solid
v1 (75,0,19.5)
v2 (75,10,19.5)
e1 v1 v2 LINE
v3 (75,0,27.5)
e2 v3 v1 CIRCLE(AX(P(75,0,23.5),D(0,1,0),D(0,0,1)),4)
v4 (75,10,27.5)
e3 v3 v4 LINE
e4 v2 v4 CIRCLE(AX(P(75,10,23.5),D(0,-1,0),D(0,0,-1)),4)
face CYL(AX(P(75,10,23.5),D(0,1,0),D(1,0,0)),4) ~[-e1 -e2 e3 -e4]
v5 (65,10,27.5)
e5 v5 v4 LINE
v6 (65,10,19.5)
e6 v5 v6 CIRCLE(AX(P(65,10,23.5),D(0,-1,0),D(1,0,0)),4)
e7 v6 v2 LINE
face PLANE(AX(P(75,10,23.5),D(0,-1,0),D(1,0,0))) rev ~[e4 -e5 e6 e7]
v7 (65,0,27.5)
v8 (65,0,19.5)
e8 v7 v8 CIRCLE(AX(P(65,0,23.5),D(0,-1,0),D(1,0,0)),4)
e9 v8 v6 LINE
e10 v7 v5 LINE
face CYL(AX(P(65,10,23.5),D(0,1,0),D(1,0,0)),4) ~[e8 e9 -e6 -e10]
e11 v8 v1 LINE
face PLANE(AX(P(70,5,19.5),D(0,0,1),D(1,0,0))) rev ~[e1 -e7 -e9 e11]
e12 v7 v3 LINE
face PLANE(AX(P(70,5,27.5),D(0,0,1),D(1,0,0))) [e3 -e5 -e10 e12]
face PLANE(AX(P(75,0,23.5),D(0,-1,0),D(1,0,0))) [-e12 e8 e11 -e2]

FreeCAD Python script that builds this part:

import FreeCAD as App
import Part
import Sketcher
Q = App.Units.Quantity

doc = App.newDocument("Part")
body = doc.addObject("PartDesign::Body", "Body")

# Sketch on XZ plane
sketch1 = body.newObject("Sketcher::SketchObject", "Sketch")
sketch1.AttachmentSupport = (doc.getObject("XZ_Plane"), [""])
sketch1.MapMode = "FlatFace"
sketch1.AttachmentOffset = App.Placement(App.Vector(0, 0, -10), App.Rotation())
sketch1.addGeometry(Part.Circle(App.Vector(65, 23.5, 0), App.Vector(0, 0, 1), 4), False)
sketch1.addConstraint([
    Sketcher.Constraint("Diameter", 0, Q("8 mm")),
    Sketcher.Constraint("DistanceX", -1, 1, 0, 3, Q("65 mm")),
    Sketcher.Constraint("DistanceY", -1, 1, 0, 3, Q("23.5 mm")),
])
pad1 = body.newObject("PartDesign::Pad", "Pad")
pad1.Profile = sketch1
pad1.Length = 10
body2 = doc.addObject("PartDesign::Body", "Body001")

# Sketch on XZ plane
sketch2 = body2.newObject("Sketcher::SketchObject", "Sketch001")
sketch2.AttachmentSupport = (doc.getObject("XZ_Plane001"), [""])
sketch2.MapMode = "FlatFace"
sketch2.AttachmentOffset = App.Placement(App.Vector(0, 0, -10), App.Rotation())
sketch2.addGeometry(Part.Circle(App.Vector(75, 23.5, 0), App.Vector(0, 0, 1), 4), False)
sketch2.addConstraint([
    Sketcher.Constraint("Diameter", 0, Q("8 mm")),
    Sketcher.Constraint("DistanceX", -1, 1, 0, 3, Q("75 mm")),
    Sketcher.Constraint("DistanceY", -1, 1, 0, 3, Q("23.5 mm")),
])
pad2 = body2.newObject("PartDesign::Pad", "Pad001")
pad2.Profile = sketch2
pad2.Length = 10
body3 = doc.addObject("PartDesign::Body", "Body002")

# Sketch on XY plane
sketch3 = body3.newObject("Sketcher::SketchObject", "Sketch002")
sketch3.AttachmentSupport = (doc.getObject("XY_Plane002"), [""])
sketch3.MapMode = "FlatFace"
sketch3.AttachmentOffset = App.Placement(App.Vector(0, 0, 19.5), App.Rotation())
sketch3.addGeometry([
    Part.LineSegment(App.Vector(65, 10, 0), App.Vector(65, 0, 0)),
    Part.LineSegment(App.Vector(65, 0, 0), App.Vector(75, 0, 0)),
    Part.LineSegment(App.Vector(75, 0, 0), App.Vector(75, 10, 0)),
    Part.LineSegment(App.Vector(75, 10, 0), App.Vector(65, 10, 0)),
], False)
sketch3.addConstraint([
    Sketcher.Constraint("Coincident", 0, 2, 1, 1),
    Sketcher.Constraint("Coincident", 1, 2, 2, 1),
    Sketcher.Constraint("Coincident", 2, 2, 3, 1),
    Sketcher.Constraint("Coincident", 3, 2, 0, 1),
    Sketcher.Constraint("Vertical", 0),
    Sketcher.Constraint("Horizontal", 1),
    Sketcher.Constraint("Vertical", 2),
    Sketcher.Constraint("Horizontal", 3),
    Sketcher.Constraint("PointOnObject", 0, 2, -1),
    Sketcher.Constraint("Equal", 3, 0),
    Sketcher.Constraint("DistanceX", 1, 1, 1, 2, Q("10 mm")),
    Sketcher.Constraint("DistanceX", -1, 1, 0, 2, Q("65 mm")),
])
pad3 = body3.newObject("PartDesign::Pad", "Pad002")
pad3.Profile = sketch3
pad3.Length = 8
doc.recompute()

boolean = body3.newObject("PartDesign::Boolean", "Boolean")
boolean.Type = "Fuse"
boolean.addObjects([body])
doc.recompute()

boolean2 = body3.newObject("PartDesign::Boolean", "Boolean001")
boolean2.Type = "Fuse"
boolean2.addObjects([body2])

doc.recompute()
